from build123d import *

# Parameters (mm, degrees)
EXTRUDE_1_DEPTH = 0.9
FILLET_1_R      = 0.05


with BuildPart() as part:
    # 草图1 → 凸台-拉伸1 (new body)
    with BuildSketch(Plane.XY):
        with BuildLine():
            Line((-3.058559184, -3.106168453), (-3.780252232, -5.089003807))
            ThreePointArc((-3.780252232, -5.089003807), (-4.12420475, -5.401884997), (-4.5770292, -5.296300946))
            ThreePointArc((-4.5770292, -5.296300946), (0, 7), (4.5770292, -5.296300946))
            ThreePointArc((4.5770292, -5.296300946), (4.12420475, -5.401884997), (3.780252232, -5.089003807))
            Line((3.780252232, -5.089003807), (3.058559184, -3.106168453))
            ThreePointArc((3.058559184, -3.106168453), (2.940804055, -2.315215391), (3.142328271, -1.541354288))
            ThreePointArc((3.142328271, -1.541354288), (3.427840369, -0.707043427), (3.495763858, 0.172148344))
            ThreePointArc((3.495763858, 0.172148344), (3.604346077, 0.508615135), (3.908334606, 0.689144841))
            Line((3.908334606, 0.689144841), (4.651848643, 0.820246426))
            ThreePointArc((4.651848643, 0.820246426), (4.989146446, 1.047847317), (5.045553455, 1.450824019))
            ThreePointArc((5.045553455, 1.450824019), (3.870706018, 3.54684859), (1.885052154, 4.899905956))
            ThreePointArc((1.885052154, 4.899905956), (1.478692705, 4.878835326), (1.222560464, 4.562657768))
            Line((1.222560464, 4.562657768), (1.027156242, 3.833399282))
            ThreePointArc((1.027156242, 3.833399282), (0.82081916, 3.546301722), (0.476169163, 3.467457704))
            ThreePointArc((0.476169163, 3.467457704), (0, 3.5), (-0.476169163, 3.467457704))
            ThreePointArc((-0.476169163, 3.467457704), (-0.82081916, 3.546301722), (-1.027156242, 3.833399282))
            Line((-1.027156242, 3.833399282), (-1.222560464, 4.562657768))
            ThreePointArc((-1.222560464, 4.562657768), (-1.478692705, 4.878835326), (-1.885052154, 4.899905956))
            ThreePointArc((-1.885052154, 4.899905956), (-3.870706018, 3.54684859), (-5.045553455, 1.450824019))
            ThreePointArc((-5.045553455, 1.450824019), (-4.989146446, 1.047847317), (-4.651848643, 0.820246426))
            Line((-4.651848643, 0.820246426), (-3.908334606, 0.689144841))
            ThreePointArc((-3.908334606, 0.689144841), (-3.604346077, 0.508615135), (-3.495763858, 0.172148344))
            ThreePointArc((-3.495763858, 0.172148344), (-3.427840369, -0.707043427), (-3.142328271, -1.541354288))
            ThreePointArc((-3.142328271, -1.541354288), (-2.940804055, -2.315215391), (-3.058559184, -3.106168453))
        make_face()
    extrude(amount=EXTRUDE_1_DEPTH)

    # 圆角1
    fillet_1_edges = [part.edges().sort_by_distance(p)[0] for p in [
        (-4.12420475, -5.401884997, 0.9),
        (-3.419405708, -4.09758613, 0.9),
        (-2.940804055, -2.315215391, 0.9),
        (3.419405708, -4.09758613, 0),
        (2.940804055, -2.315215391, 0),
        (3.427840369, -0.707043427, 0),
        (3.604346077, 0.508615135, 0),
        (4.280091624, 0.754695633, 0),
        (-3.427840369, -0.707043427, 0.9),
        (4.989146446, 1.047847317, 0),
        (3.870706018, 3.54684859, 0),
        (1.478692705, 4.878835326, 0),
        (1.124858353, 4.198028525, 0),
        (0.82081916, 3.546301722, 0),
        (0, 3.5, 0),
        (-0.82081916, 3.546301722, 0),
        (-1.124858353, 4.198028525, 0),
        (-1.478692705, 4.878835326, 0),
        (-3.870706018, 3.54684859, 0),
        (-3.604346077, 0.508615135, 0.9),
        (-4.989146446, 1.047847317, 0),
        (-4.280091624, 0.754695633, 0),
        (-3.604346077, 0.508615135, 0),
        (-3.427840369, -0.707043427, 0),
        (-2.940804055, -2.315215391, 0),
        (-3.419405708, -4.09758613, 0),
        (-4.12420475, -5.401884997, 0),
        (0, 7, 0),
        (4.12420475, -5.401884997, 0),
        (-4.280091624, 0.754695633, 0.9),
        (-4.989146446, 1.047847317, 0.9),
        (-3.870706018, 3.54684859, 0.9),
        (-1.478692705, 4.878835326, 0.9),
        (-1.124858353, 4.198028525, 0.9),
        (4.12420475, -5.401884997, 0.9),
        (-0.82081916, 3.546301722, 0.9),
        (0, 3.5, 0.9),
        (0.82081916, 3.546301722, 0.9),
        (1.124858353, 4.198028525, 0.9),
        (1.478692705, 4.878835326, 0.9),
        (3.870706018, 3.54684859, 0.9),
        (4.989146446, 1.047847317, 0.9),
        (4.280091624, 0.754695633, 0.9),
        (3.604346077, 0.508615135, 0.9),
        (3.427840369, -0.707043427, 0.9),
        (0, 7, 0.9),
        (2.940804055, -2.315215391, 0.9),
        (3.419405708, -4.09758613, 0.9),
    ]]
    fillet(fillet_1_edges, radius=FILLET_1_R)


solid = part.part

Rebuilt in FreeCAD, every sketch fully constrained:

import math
import FreeCAD as App
import Part
import Sketcher

V = App.Vector
Q = App.Units.Quantity


def edges_at(feature, points):
    """Names of the edges that pass closest to the given points."""
    edges = feature.Shape.Edges
    near = lambda p: min(range(len(edges)), key=lambda i: edges[i].distToShape(Part.Vertex(*p))[0])
    return sorted({f"Edge{near(p) + 1}" for p in points})

doc = App.newDocument("Part")
params = doc.addObject("Spreadsheet::Sheet", "Params")
for row, (alias, value) in enumerate([
    ("sketch1_radius", "2 mm"),
    ("sketch1_radius2", "7 mm"),
    ("sketch1_radius3", "3.5 mm"),
    ("sketch1_radius4", "0.5 mm"),
    ("sketch1_radius5", "5.25 mm"),
    ("pad1_length", "0.9 mm"),
    ("fillet_radius", "0.05 mm"),
], start=1):
    params.set(f"A{row}", alias)
    params.set(f"B{row}", "=" + value)
    params.setAlias(f"B{row}", alias)

body = doc.addObject("PartDesign::Body", "Body")

sketch1 = body.newObject("Sketcher::SketchObject", "Sketch")
sketch1.AttachmentSupport = (doc.getObject("XY_Plane"), [""])
sketch1.MapMode = "FlatFace"
sketch1.addGeometry([
    Part.LineSegment(V(-3.78, -5.09, 0), V(-3.06, -3.11, 0)),
    Part.ArcOfCircle(Part.Circle(V(-4.94, -2.42, 0), V(0, 0, 1), 2), math.radians(-20), math.radians(26)),
    Part.ArcOfCircle(Part.Circle(V(0, 0, 0), V(0, 0, 1), 3.5), math.radians(177), math.radians(206)),
    Part.ArcOfCircle(Part.Circle(V(-4, 0.2, 0), V(0, 0, 1), 0.5), math.radians(-3), math.radians(80)),
    Part.LineSegment(V(-3.91, 0.69, 0), V(-4.65, 0.82, 0)),
    Part.ArcOfCircle(Part.Circle(V(-4.57, 1.31, 0), V(0, 0, 1), 0.5), math.radians(164), math.radians(260)),
    Part.ArcOfCircle(Part.Circle(V(0, 0, 0), V(0, 0, 1), 5.25), math.radians(111), math.radians(164)),
    Part.ArcOfCircle(Part.Circle(V(-1.71, 4.43, 0), V(0, 0, 1), 0.5), math.radians(15), math.radians(111)),
    Part.LineSegment(V(-1.22, 4.56, 0), V(-1.03, 3.83, 0)),
    Part.ArcOfCircle(Part.Circle(V(-0.54, 3.96, 0), V(0, 0, 1), 0.5), math.radians(-165), math.radians(-82)),
    Part.ArcOfCircle(Part.Circle(V(0, 0, 0), V(0, 0, 1), 3.5), math.radians(82.18), math.radians(97.82)),
    Part.ArcOfCircle(Part.Circle(V(0.54, 3.96, 0), V(0, 0, 1), 0.5), math.radians(-98), math.radians(-15)),
    Part.LineSegment(V(1.03, 3.83, 0), V(1.22, 4.56, 0)),
    Part.ArcOfCircle(Part.Circle(V(1.71, 4.43, 0), V(0, 0, 1), 0.5), math.radians(69), math.radians(165)),
    Part.ArcOfCircle(Part.Circle(V(0, 0, 0), V(0, 0, 1), 5.25), math.radians(16), math.radians(69)),
    Part.ArcOfCircle(Part.Circle(V(4.57, 1.31, 0), V(0, 0, 1), 0.5), math.radians(-80), math.radians(16)),
    Part.LineSegment(V(4.65, 0.82, 0), V(3.91, 0.69, 0)),
    Part.ArcOfCircle(Part.Circle(V(4, 0.2, 0), V(0, 0, 1), 0.5), math.radians(100), math.radians(183)),
    Part.ArcOfCircle(Part.Circle(V(0, 0, 0), V(0, 0, 1), 3.5), math.radians(-26), math.radians(3)),
    Part.ArcOfCircle(Part.Circle(V(4.94, -2.42, 0), V(0, 0, 1), 2), math.radians(154), math.radians(200)),
    Part.LineSegment(V(3.06, -3.11, 0), V(3.78, -5.09, 0)),
    Part.ArcOfCircle(Part.Circle(V(4.25, -4.92, 0), V(0, 0, 1), 0.5), math.radians(-160), math.radians(-49)),
    Part.ArcOfCircle(Part.Circle(V(0, 0, 0), V(0, 0, 1), 7), math.radians(-49), math.radians(229)),
    Part.ArcOfCircle(Part.Circle(V(-4.25, -4.92, 0), V(0, 0, 1), 0.5), math.radians(-131), math.radians(-20)),
], False)
sketch1.addConstraint([
    Sketcher.Constraint("Tangent", 0, 2, 1, 1),
    Sketcher.Constraint("Tangent", 1, 2, 2, 2),
    Sketcher.Constraint("Tangent", 2, 1, 3, 1),
    Sketcher.Constraint("Tangent", 3, 2, 4, 1),
    Sketcher.Constraint("Tangent", 4, 2, 5, 2),
    Sketcher.Constraint("Tangent", 5, 1, 6, 2),
    Sketcher.Constraint("Tangent", 6, 1, 7, 2),
    Sketcher.Constraint("Tangent", 7, 1, 8, 1),
    Sketcher.Constraint("Tangent", 8, 2, 9, 1),
    Sketcher.Constraint("Tangent", 9, 2, 10, 2),
    Sketcher.Constraint("Tangent", 10, 1, 11, 1),
    Sketcher.Constraint("Tangent", 11, 2, 12, 1),
    Sketcher.Constraint("Tangent", 12, 2, 13, 2),
    Sketcher.Constraint("Tangent", 13, 1, 14, 2),
    Sketcher.Constraint("Tangent", 14, 1, 15, 2),
    Sketcher.Constraint("Tangent", 15, 1, 16, 1),
    Sketcher.Constraint("Tangent", 16, 2, 17, 1),
    Sketcher.Constraint("Tangent", 17, 2, 18, 2),
    Sketcher.Constraint("Tangent", 18, 1, 19, 1),
    Sketcher.Constraint("Tangent", 19, 2, 20, 1),
    Sketcher.Constraint("Tangent", 20, 2, 21, 1),
    Sketcher.Constraint("Tangent", 21, 2, 22, 1),
    Sketcher.Constraint("Tangent", 22, 2, 23, 1),
    Sketcher.Constraint("Tangent", 23, 2, 0, 1),
    Sketcher.Constraint("Coincident", 2, 3, -1, 1),
    Sketcher.Constraint("Coincident", 6, 3, -1, 1),
    Sketcher.Constraint("Coincident", 10, 3, -1, 1),
    Sketcher.Constraint("Coincident", 14, 3, -1, 1),
    Sketcher.Constraint("Coincident", 18, 3, -1, 1),
    Sketcher.Constraint("Coincident", 22, 3, -1, 1),
    Sketcher.Constraint("Equal", 3, 5),
    Sketcher.Constraint("Equal", 5, 7),
    Sketcher.Constraint("Equal", 7, 9),
    Sketcher.Constraint("Equal", 2, 10),
    Sketcher.Constraint("Equal", 9, 11),
    Sketcher.Constraint("Equal", 11, 13),
    Sketcher.Constraint("Equal", 6, 14),
    Sketcher.Constraint("Equal", 13, 15),
    Sketcher.Constraint("Equal", 15, 17),
    Sketcher.Constraint("Equal", 10, 18),
    Sketcher.Constraint("Equal", 1, 19),
    Sketcher.Constraint("Equal", 17, 21),
    Sketcher.Constraint("Equal", 21, 23),
    Sketcher.Constraint("Symmetric", 8, 2, 11, 2, -2),
    Sketcher.Constraint("Symmetric", 4, 2, 15, 1, -2),
    Sketcher.Constraint("Symmetric", 0, 2, 19, 2, -2),
    Sketcher.Constraint("Equal", 4, 8),
    Sketcher.Constraint("Radius", 1, 2.0),
    Sketcher.Constraint("Radius", 22, 7.0),
    Sketcher.Constraint("Radius", 2, 3.5),
    Sketcher.Constraint("Radius", 3, 0.5),
    Sketcher.Constraint("Angle", 0, Q("70 deg")),
    Sketcher.Constraint("Angle", 4, Q("170 deg")),
    Sketcher.Constraint("Angle", 8, Q("-75 deg")),
    Sketcher.Constraint("Radius", 6, 5.25),
    Sketcher.Constraint("DistanceY", 15, 1, 13, 3, 3.613002),
    Sketcher.Constraint("DistanceX", -1, 1, 21, 3, 4.250099),
])
sketch1.setExpression("Constraints[47]", "Params.sketch1_radius")
sketch1.setExpression("Constraints[48]", "Params.sketch1_radius2")
sketch1.setExpression("Constraints[49]", "Params.sketch1_radius3")
sketch1.setExpression("Constraints[50]", "Params.sketch1_radius4")
sketch1.setExpression("Constraints[54]", "Params.sketch1_radius5")
pad1 = body.newObject("PartDesign::Pad", "Pad")
pad1.Profile = sketch1
pad1.setExpression("Length", "Params.pad1_length")
doc.recompute()

fillet = body.newObject("PartDesign::Fillet", "Fillet")
fillet.Base = (pad1, edges_at(pad1, [
    (-4.124, -5.402, 0.9),
    (-3.419, -4.098, 0.9),
    (-2.941, -2.315, 0.9),
    (3.419, -4.098, 0),
    (2.941, -2.315, 0),
    (3.428, -0.707, 0),
    (3.604, 0.509, 0),
    (4.28, 0.755, 0),
    (-3.428, -0.707, 0.9),
    (4.989, 1.048, 0),
    (3.871, 3.547, 0),
    (1.479, 4.879, 0),
    (1.125, 4.198, 0),
    (0.821, 3.546, 0),
    (0, 3.5, 0),
    (-0.821, 3.546, 0),
    (-1.125, 4.198, 0),
    (-1.479, 4.879, 0),
    (-3.871, 3.547, 0),
    (-3.604, 0.509, 0.9),
    (-4.989, 1.048, 0),
    (-4.28, 0.755, 0),
    (-3.604, 0.509, 0),
    (-3.428, -0.707, 0),
    (-2.941, -2.315, 0),
    (-3.419, -4.098, 0),
    (-4.124, -5.402, 0),
    (0, 7, 0),
    (4.124, -5.402, 0),
    (-4.28, 0.755, 0.9),
    (-4.989, 1.048, 0.9),
    (-3.871, 3.547, 0.9),
    (-1.479, 4.879, 0.9),
    (-1.125, 4.198, 0.9),
    (4.124, -5.402, 0.9),
    (-0.821, 3.546, 0.9),
    (0, 3.5, 0.9),
    (0.821, 3.546, 0.9),
    (1.125, 4.198, 0.9),
    (1.479, 4.879, 0.9),
    (3.871, 3.547, 0.9),
    (4.989, 1.048, 0.9),
    (4.28, 0.755, 0.9),
    (3.604, 0.509, 0.9),
    (3.428, -0.707, 0.9),
    (0, 7, 0.9),
    (2.941, -2.315, 0.9),
    (3.419, -4.098, 0.9),
]))
fillet.setExpression("Radius", "Params.fillet_radius")

doc.recompute()
